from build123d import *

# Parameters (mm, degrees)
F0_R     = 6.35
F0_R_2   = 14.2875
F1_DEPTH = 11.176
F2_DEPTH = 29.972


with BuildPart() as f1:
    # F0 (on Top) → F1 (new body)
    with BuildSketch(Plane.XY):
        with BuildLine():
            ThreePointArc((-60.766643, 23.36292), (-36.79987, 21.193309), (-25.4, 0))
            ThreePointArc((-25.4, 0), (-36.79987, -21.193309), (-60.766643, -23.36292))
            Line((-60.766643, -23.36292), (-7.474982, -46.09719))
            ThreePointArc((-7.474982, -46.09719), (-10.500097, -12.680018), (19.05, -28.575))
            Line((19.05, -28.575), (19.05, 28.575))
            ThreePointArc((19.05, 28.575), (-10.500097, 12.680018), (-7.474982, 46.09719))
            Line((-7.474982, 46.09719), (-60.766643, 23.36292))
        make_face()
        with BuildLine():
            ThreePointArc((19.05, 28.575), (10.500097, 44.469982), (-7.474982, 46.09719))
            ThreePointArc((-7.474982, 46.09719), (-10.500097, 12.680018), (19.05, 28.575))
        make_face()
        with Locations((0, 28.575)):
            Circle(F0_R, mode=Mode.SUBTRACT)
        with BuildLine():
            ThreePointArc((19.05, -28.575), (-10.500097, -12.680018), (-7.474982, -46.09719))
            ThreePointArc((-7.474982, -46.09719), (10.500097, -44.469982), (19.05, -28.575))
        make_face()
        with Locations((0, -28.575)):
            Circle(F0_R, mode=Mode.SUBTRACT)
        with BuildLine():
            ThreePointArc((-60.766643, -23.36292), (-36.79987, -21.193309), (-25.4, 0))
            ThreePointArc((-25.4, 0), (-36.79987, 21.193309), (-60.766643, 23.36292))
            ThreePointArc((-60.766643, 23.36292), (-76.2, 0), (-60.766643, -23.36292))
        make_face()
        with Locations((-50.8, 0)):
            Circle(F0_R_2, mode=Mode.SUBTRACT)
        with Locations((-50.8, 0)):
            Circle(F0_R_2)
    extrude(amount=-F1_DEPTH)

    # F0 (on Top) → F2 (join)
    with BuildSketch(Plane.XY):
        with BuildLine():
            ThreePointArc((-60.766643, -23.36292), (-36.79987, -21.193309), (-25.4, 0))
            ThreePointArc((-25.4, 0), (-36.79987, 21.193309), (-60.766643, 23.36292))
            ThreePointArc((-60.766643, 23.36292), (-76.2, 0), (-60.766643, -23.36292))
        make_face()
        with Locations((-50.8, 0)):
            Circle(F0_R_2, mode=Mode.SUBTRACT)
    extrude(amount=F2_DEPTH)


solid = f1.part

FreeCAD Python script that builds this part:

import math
import FreeCAD as App
import Part
import Sketcher
from FreeCAD import Vector
Q = App.Units.Quantity

doc = App.newDocument("Part")
body = doc.addObject("PartDesign::Body", "Body")

# Sketch on XY plane
sketch1 = body.newObject("Sketcher::SketchObject", "Sketch")
sketch1.AttachmentSupport = (doc.getObject("XY_Plane"), [""])
sketch1.MapMode = "FlatFace"
sketch1.addGeometry(Part.LineSegment(Vector(-7, 46, 0), Vector(-61, 23, 0)), False)
sketch1.addGeometry(Part.ArcOfCircle(Part.Circle(Vector(-51, 0, 0), Vector(0, 0, 1), 25), math.radians(113), math.radians(247)), False)
sketch1.addGeometry(Part.LineSegment(Vector(-61, -23, 0), Vector(-7, -46, 0)), False)
sketch1.addGeometry(Part.ArcOfCircle(Part.Circle(Vector(0, -29, 0), Vector(0, 0, 1), 19), math.radians(-113), math.radians(0)), False)
sketch1.addGeometry(Part.LineSegment(Vector(19, -29, 0), Vector(19, 29, 0)), False)
sketch1.addGeometry(Part.ArcOfCircle(Part.Circle(Vector(0, 29, 0), Vector(0, 0, 1), 19), math.radians(0), math.radians(113)), False)
sketch1.addGeometry(Part.Circle(Vector(0, -29, 0), Vector(0, 0, 1), 6), False)
sketch1.addGeometry(Part.Circle(Vector(0, 29, 0), Vector(0, 0, 1), 6), False)
sketch1.addConstraint(Sketcher.Constraint("Tangent", 0, 2, 1, 1))
sketch1.addConstraint(Sketcher.Constraint("Tangent", 1, 2, 2, 1))
sketch1.addConstraint(Sketcher.Constraint("Tangent", 2, 2, 3, 1))
sketch1.addConstraint(Sketcher.Constraint("Tangent", 3, 2, 4, 1))
sketch1.addConstraint(Sketcher.Constraint("Tangent", 4, 2, 5, 1))
sketch1.addConstraint(Sketcher.Constraint("Tangent", 5, 2, 0, 1))
sketch1.addConstraint(Sketcher.Constraint("Vertical", 4))
sketch1.addConstraint(Sketcher.Constraint("Coincident", 6, 3, 3, 3))
sketch1.addConstraint(Sketcher.Constraint("Coincident", 7, 3, 5, 3))
sketch1.addConstraint(Sketcher.Constraint("Equal", 3, 5))
sketch1.addConstraint(Sketcher.Constraint("Equal", 6, 7))
sketch1.addConstraint(Sketcher.Constraint("Symmetric", 3, 3, 5, 3, -1, 1))
sketch1.addConstraint(Sketcher.Constraint("PointOnObject", 1, 3, -1))
sketch1.addConstraint(Sketcher.Constraint("Radius", 1, Q("1 in")))
sketch1.addConstraint(Sketcher.Constraint("Diameter", 6, Q("0.5 in")))
sketch1.addConstraint(Sketcher.Constraint("Radius", 3, Q("0.75 in")))
sketch1.addConstraint(Sketcher.Constraint("DistanceX", 1, 3, -1, 1, Q("2 in")))
sketch1.addConstraint(Sketcher.Constraint("DistanceY", 4, 1, 4, 2, Q("2.25 in")))
pad1 = body.newObject("PartDesign::Pad", "Pad")
pad1.Profile = sketch1
pad1.Length = Q("0.44 in")
pad1.Reversed = True

# Sketch on XY plane
sketch2 = body.newObject("Sketcher::SketchObject", "Sketch001")
sketch2.AttachmentSupport = (doc.getObject("XY_Plane"), [""])
sketch2.MapMode = "FlatFace"
sketch2.addGeometry(Part.ArcOfCircle(Part.Circle(Vector(-51, 0, 0), Vector(0, 0, 1), 25), math.radians(-113), math.radians(0)), False)
sketch2.addGeometry(Part.ArcOfCircle(Part.Circle(Vector(-51, 0, 0), Vector(0, 0, 1), 25), math.radians(0), math.radians(113)), False)
sketch2.addGeometry(Part.ArcOfCircle(Part.Circle(Vector(-51, 0, 0), Vector(0, 0, 1), 25), math.radians(113), math.radians(247)), False)
sketch2.addGeometry(Part.Circle(Vector(-51, 0, 0), Vector(0, 0, 1), 14), False)
sketch2.addConstraint(Sketcher.Constraint("Tangent", 0, 2, 1, 1))
sketch2.addConstraint(Sketcher.Constraint("Tangent", 1, 2, 2, 1))
sketch2.addConstraint(Sketcher.Constraint("Tangent", 2, 2, 0, 1))
sketch2.addConstraint(Sketcher.Constraint("Coincident", 3, 3, 0, 3))
sketch2.addConstraint(Sketcher.Constraint("Symmetric", 1, 2, 2, 2, -1))
sketch2.addConstraint(Sketcher.Constraint("PointOnObject", 0, 2, -1))
sketch2.addConstraint(Sketcher.Constraint("Radius", 0, Q("1 in")))
sketch2.addConstraint(Sketcher.Constraint("Diameter", 3, Q("1.125 in")))
sketch2.addConstraint(Sketcher.Constraint("DistanceX", 0, 3, -1, 1, Q("2 in")))
sketch2.addConstraint(Sketcher.Constraint("DistanceY", -1, 1, 1, 2, Q("0.9198 in")))
pad2 = body.newObject("PartDesign::Pad", "Pad001")
pad2.Profile = sketch2
pad2.Length = Q("1.18 in")

doc.recompute()
